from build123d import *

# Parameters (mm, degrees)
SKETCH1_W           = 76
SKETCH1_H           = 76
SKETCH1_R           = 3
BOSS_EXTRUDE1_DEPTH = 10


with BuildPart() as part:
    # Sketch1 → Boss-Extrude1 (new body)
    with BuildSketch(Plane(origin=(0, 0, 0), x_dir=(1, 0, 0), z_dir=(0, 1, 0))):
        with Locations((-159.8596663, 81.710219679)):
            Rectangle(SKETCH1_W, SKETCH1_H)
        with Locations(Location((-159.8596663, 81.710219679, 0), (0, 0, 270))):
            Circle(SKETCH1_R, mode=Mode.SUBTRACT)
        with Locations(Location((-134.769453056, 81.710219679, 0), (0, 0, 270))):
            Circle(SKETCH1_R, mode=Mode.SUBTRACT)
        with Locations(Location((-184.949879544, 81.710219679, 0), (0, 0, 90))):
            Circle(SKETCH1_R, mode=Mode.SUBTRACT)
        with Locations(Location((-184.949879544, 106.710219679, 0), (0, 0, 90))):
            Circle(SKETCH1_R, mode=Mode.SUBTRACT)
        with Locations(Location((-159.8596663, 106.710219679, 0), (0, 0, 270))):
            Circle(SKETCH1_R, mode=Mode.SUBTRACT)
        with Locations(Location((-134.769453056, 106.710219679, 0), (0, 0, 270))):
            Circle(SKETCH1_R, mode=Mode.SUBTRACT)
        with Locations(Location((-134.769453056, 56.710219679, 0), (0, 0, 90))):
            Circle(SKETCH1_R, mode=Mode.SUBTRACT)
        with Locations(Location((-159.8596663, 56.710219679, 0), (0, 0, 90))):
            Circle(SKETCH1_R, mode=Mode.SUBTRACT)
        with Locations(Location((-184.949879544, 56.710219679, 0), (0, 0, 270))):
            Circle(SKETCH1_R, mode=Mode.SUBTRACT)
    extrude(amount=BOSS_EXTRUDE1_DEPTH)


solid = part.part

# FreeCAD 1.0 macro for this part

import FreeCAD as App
import Part
import Sketcher


def add_polygon(sketch, points):
    """Adds a closed chain of lines whose ends are joined by coincident constraints."""
    first, n = sketch.GeometryCount, len(points)
    for a, b in zip(points, points[1:] + points[:1]):
        sketch.addGeometry(Part.LineSegment(App.Vector(*a, 0), App.Vector(*b, 0)), False)
    for i in range(n):
        sketch.addConstraint(Sketcher.Constraint("Coincident", first + i, 2, first + (i + 1) % n, 1))

doc = App.newDocument("Part")
params = doc.addObject("Spreadsheet::Sheet", "Params")
for row, (alias, value) in enumerate([
    ("sketch1_diameter", "6 mm"),
    ("sketch1_width", "76 mm"),
    ("pad1_length", "10 mm"),
], start=1):
    params.set(f"A{row}", alias)
    params.set(f"B{row}", "=" + value)
    params.setAlias(f"B{row}", alias)

body = doc.addObject("PartDesign::Body", "Body")

# Sketch on XZ plane
sketch1 = doc.addObject("Sketcher::SketchObject", "Sketch")
body.addObject(sketch1)
sketch1.AttachmentSupport = (doc.XZ_Plane, [""])
sketch1.MapMode = "FlatFace"
add_polygon(sketch1, [(-197.9, -119.7), (-197.9, -43.7), (-121.9, -43.7), (-121.9, -119.7)])  # lines 0-3
sketch1.addGeometry(Part.Circle(App.Vector(-184.9, -56.7, 0), App.Vector(0, 0, 1), 3), False)  # 4
sketch1.addGeometry(Part.Circle(App.Vector(-159.9, -56.7, 0), App.Vector(0, 0, 1), 3), False)  # 5
sketch1.addGeometry(Part.Circle(App.Vector(-134.8, -56.7, 0), App.Vector(0, 0, 1), 3), False)  # 6
sketch1.addGeometry(Part.Circle(App.Vector(-184.9, -81.7, 0), App.Vector(0, 0, 1), 3), False)  # 7
sketch1.addGeometry(Part.Circle(App.Vector(-184.9, -106.7, 0), App.Vector(0, 0, 1), 3), False)  # 8
sketch1.addGeometry(Part.Circle(App.Vector(-159.9, -81.7, 0), App.Vector(0, 0, 1), 3), False)  # 9
sketch1.addGeometry(Part.Circle(App.Vector(-134.8, -81.7, 0), App.Vector(0, 0, 1), 3), False)  # 10
sketch1.addGeometry(Part.Circle(App.Vector(-159.9, -106.7, 0), App.Vector(0, 0, 1), 3), False)  # 11
sketch1.addGeometry(Part.Circle(App.Vector(-134.8, -106.7, 0), App.Vector(0, 0, 1), 3), False)  # 12
sketch1.addConstraint([
    Sketcher.Constraint("Vertical", 0),
    Sketcher.Constraint("Horizontal", 1),
    Sketcher.Constraint("Vertical", 2),
    Sketcher.Constraint("Horizontal", 3),
    Sketcher.Constraint("Equal", 4, 5),
    Sketcher.Constraint("Equal", 5, 6),
    Sketcher.Constraint("Equal", 6, 7),
    Sketcher.Constraint("Equal", 7, 8),
    Sketcher.Constraint("Equal", 8, 9),
    Sketcher.Constraint("Equal", 9, 10),
    Sketcher.Constraint("Equal", 10, 11),
    Sketcher.Constraint("Equal", 11, 12),
    Sketcher.Constraint("Horizontal", 4, 3, 5, 3),
    Sketcher.Constraint("Horizontal", 5, 3, 6, 3),
    Sketcher.Constraint("Horizontal", 7, 3, 9, 3),
    Sketcher.Constraint("Horizontal", 9, 3, 10, 3),
    Sketcher.Constraint("Horizontal", 8, 3, 11, 3),
    Sketcher.Constraint("Horizontal", 11, 3, 12, 3),
    Sketcher.Constraint("Vertical", 4, 3, 7, 3),
    Sketcher.Constraint("Vertical", 7, 3, 8, 3),
    Sketcher.Constraint("Vertical", 5, 3, 9, 3),
    Sketcher.Constraint("Vertical", 6, 3, 10, 3),
    Sketcher.Constraint("Vertical", 9, 3, 11, 3),
    Sketcher.Constraint("Vertical", 10, 3, 12, 3),
    Sketcher.Constraint("Equal", 3, 0),
    Sketcher.Constraint("Diameter", 4, 6.0),
    Sketcher.Constraint("DistanceX", 1, 1, 1, 2, 76.0),
    Sketcher.Constraint("DistanceY", 7, 3, 4, 3, 25.0),
    Sketcher.Constraint("DistanceY", 8, 3, 7, 3, 25.0),
    Sketcher.Constraint("DistanceY", 4, 3, 0, 2, 13.0),
    Sketcher.Constraint("DistanceX", 0, 2, 5, 3, 38.0),
    Sketcher.Constraint("DistanceX", 4, 3, -1, 1, 184.94988),
    Sketcher.Constraint("DistanceY", 4, 3, -1, 1, 56.71022),
    Sketcher.Constraint("DistanceX", 5, 3, -1, 1, 159.859666),
    Sketcher.Constraint("DistanceX", 6, 3, -1, 1, 134.769453),
])
sketch1.setExpression("Constraints[29]", "Params.sketch1_diameter")
sketch1.setExpression("Constraints[30]", "Params.sketch1_width")
pad1 = doc.addObject("PartDesign::Pad", "Pad")
body.addObject(pad1)
pad1.Profile = sketch1
pad1.setExpression("Length", "Params.pad1_length")
pad1.Reversed = True

doc.recompute()
